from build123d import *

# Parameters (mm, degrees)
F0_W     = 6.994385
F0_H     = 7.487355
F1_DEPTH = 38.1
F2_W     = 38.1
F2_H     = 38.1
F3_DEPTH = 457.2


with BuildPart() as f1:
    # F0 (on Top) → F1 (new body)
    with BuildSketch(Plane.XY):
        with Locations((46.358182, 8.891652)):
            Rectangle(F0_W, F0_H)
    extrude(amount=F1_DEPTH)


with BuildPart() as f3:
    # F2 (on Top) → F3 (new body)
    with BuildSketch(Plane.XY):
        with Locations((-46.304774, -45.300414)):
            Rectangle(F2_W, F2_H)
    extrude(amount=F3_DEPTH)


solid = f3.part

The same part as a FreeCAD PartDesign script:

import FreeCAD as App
import Part
import Sketcher
Q = App.Units.Quantity

doc = App.newDocument("Part")
body = doc.addObject("PartDesign::Body", "Body")

# Sketch on XY plane
sketch1 = doc.addObject("Sketcher::SketchObject", "Sketch")
body.addObject(sketch1)
sketch1.AttachmentSupport = (doc.XY_Plane, [""])
sketch1.MapMode = "FlatFace"
sketch1.addGeometry([
    Part.LineSegment(App.Vector(43, 13, 0), App.Vector(43, 5, 0)),
    Part.LineSegment(App.Vector(43, 5, 0), App.Vector(50, 5, 0)),
    Part.LineSegment(App.Vector(50, 5, 0), App.Vector(50, 13, 0)),
    Part.LineSegment(App.Vector(50, 13, 0), App.Vector(43, 13, 0)),
], False)
sketch1.addConstraint([
    Sketcher.Constraint("Coincident", 0, 2, 1, 1),
    Sketcher.Constraint("Coincident", 1, 2, 2, 1),
    Sketcher.Constraint("Coincident", 2, 2, 3, 1),
    Sketcher.Constraint("Coincident", 3, 2, 0, 1),
    Sketcher.Constraint("Vertical", 0),
    Sketcher.Constraint("Horizontal", 1),
    Sketcher.Constraint("Vertical", 2),
    Sketcher.Constraint("Horizontal", 3),
    Sketcher.Constraint("DistanceX", 1, 1, 1, 2, Q("6.994385 mm")),
    Sketcher.Constraint("DistanceY", 0, 2, 0, 1, Q("7.487355 mm")),
    Sketcher.Constraint("DistanceX", -1, 1, 0, 2, Q("42.86099 mm")),
    Sketcher.Constraint("DistanceY", -1, 1, 2, 2, Q("12.635329 mm")),
])
pad1 = doc.addObject("PartDesign::Pad", "Pad")
body.addObject(pad1)
pad1.Profile = sketch1
pad1.Length = Q("1.5 in")
body2 = doc.addObject("PartDesign::Body", "Body001")

# Sketch on XY plane
sketch2 = doc.addObject("Sketcher::SketchObject", "Sketch001")
body2.addObject(sketch2)
sketch2.AttachmentSupport = (doc.getObject("XY_Plane001"), [""])
sketch2.MapMode = "FlatFace"
sketch2.addGeometry([
    Part.LineSegment(App.Vector(-65, -26, 0), App.Vector(-65, -64, 0)),
    Part.LineSegment(App.Vector(-65, -64, 0), App.Vector(-27, -64, 0)),
    Part.LineSegment(App.Vector(-27, -64, 0), App.Vector(-27, -26, 0)),
    Part.LineSegment(App.Vector(-27, -26, 0), App.Vector(-65, -26, 0)),
], False)
sketch2.addConstraint([
    Sketcher.Constraint("Coincident", 0, 2, 1, 1),
    Sketcher.Constraint("Coincident", 1, 2, 2, 1),
    Sketcher.Constraint("Coincident", 2, 2, 3, 1),
    Sketcher.Constraint("Coincident", 3, 2, 0, 1),
    Sketcher.Constraint("Vertical", 0),
    Sketcher.Constraint("Horizontal", 1),
    Sketcher.Constraint("Vertical", 2),
    Sketcher.Constraint("Horizontal", 3),
    Sketcher.Constraint("Equal", 3, 0),
    Sketcher.Constraint("DistanceX", 1, 1, 1, 2, Q("1.5 in")),
    Sketcher.Constraint("DistanceX", 0, 2, -1, 1, Q("65.354774 mm")),
    Sketcher.Constraint("DistanceY", 0, 2, -1, 1, Q("64.350414 mm")),
])
pad2 = doc.addObject("PartDesign::Pad", "Pad001")
body2.addObject(pad2)
pad2.Profile = sketch2
pad2.Length = Q("18 in")
body.Visibility = False

doc.recompute()
